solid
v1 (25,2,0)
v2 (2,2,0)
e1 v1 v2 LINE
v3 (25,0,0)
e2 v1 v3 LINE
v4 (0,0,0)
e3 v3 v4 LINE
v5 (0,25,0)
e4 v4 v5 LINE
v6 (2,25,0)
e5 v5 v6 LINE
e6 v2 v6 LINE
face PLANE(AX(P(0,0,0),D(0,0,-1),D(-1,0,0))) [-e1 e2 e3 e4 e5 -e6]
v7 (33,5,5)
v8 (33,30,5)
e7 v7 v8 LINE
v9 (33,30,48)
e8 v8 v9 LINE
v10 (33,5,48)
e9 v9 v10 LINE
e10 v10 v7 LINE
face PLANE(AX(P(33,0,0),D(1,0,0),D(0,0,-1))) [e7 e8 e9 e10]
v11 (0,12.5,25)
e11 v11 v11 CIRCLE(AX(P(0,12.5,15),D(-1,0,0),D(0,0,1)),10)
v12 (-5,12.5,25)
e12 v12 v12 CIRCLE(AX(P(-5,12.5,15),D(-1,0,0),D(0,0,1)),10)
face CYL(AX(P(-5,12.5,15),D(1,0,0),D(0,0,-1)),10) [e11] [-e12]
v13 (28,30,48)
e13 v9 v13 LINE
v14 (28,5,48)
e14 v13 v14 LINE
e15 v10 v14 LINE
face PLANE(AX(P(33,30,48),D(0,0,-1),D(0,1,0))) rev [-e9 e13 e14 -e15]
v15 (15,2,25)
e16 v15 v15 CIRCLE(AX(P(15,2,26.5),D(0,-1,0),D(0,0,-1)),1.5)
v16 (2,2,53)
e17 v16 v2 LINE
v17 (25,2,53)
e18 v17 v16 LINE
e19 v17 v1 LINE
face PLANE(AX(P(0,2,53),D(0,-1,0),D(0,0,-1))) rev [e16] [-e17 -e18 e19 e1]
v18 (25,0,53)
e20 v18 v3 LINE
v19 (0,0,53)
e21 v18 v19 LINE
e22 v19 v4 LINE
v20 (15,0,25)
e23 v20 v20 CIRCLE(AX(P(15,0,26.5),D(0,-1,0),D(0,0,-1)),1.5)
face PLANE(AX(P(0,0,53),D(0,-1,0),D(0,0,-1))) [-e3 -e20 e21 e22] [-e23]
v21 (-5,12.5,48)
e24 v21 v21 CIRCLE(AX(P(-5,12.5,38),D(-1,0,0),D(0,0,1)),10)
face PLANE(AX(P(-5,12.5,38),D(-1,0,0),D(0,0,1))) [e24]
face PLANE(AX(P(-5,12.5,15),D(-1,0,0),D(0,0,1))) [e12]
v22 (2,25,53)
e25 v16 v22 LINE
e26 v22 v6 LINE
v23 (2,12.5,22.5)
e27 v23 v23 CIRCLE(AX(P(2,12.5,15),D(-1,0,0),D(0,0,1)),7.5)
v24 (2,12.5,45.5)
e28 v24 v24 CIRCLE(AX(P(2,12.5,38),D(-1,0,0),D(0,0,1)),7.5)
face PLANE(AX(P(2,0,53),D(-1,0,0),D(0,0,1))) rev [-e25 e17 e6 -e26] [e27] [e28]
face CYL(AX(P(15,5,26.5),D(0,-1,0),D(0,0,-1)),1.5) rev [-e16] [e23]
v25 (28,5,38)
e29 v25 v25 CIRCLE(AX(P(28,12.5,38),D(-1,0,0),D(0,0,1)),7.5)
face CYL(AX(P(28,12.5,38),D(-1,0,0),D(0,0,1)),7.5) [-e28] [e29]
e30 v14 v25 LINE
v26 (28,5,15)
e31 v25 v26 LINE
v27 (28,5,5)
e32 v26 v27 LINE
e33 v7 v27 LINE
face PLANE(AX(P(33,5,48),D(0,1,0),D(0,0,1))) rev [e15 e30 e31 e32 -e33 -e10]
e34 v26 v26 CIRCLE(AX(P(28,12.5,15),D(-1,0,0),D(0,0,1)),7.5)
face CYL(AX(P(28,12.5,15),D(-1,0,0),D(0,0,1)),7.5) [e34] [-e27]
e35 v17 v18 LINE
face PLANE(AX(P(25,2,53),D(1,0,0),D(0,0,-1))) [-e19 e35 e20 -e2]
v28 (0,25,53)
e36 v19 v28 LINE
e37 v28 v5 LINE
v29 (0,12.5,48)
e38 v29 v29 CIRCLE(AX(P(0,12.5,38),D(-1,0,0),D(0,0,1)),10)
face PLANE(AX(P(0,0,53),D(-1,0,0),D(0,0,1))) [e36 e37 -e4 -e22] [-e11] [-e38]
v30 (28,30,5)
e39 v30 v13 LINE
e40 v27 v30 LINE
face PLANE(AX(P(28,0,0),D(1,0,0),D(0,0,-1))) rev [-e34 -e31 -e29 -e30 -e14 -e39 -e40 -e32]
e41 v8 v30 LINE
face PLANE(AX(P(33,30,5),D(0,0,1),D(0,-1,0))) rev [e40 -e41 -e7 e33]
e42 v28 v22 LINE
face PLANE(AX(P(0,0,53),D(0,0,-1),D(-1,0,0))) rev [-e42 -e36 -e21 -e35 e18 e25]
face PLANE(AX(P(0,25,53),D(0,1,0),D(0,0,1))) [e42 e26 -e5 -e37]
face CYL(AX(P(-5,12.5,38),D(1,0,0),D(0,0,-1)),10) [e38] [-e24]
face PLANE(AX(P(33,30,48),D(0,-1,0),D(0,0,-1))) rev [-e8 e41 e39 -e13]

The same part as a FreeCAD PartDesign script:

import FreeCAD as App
import Part
import Sketcher
from FreeCAD import Vector
Q = App.Units.Quantity

doc = App.newDocument("Part")
body = doc.addObject("PartDesign::Body", "Body")

# Sketch on XY plane
sketch1 = doc.addObject("Sketcher::SketchObject", "Sketch")
body.addObject(sketch1)
sketch1.AttachmentSupport = (doc.XY_Plane, [""])
sketch1.MapMode = "FlatFace"
sketch1.addGeometry([
    Part.LineSegment(Vector(0, 25, 0), Vector(0, 0, 0)),  # 0
    Part.LineSegment(Vector(0, 0, 0), Vector(25, 0, 0)),  # 1
    Part.LineSegment(Vector(25, 0, 0), Vector(25, 2, 0)),  # 2
    Part.LineSegment(Vector(25, 2, 0), Vector(2, 2, 0)),  # 3
    Part.LineSegment(Vector(2, 2, 0), Vector(2, 25, 0)),  # 4
    Part.LineSegment(Vector(2, 25, 0), Vector(0, 25, 0)),  # 5
], False)
sketch1.addConstraint([
    Sketcher.Constraint("Coincident", 0, 2, 1, 1),
    Sketcher.Constraint("Coincident", 1, 2, 2, 1),
    Sketcher.Constraint("Coincident", 2, 2, 3, 1),
    Sketcher.Constraint("Coincident", 3, 2, 4, 1),
    Sketcher.Constraint("Coincident", 4, 2, 5, 1),
    Sketcher.Constraint("Coincident", 5, 2, 0, 1),
    Sketcher.Constraint("Vertical", 0),
    Sketcher.Constraint("Horizontal", 1),
    Sketcher.Constraint("Vertical", 2),
    Sketcher.Constraint("Horizontal", 3),
    Sketcher.Constraint("Vertical", 4),
    Sketcher.Constraint("Horizontal", 5),
    Sketcher.Constraint("Coincident", 0, 2, -1, 1),
    Sketcher.Constraint("Equal", 1, 0),
    Sketcher.Constraint("Equal", 5, 2),
    Sketcher.Constraint("DistanceX", 1, 1, 1, 2, Q("25 mm")),
    Sketcher.Constraint("DistanceX", 3, 2, 3, 1, Q("23 mm")),
])
pad1 = doc.addObject("PartDesign::Pad", "Pad")
body.addObject(pad1)
pad1.Profile = sketch1
pad1.Length = 53

# Sketch on YZ plane
sketch2 = doc.addObject("Sketcher::SketchObject", "Sketch001")
body.addObject(sketch2)
sketch2.AttachmentSupport = (doc.YZ_Plane, [""])
sketch2.MapMode = "FlatFace"
sketch2.addGeometry([
    Part.Circle(Vector(12, 15, 0), Vector(0, 0, 1), 10),
    Part.Circle(Vector(12, 38, 0), Vector(0, 0, 1), 10),
], False)
sketch2.addConstraint([
    Sketcher.Constraint("Equal", 0, 1),
    Sketcher.Constraint("Vertical", 0, 3, 1, 3),
    Sketcher.Constraint("Diameter", 0, Q("20 mm")),
    Sketcher.Constraint("DistanceY", -1, 1, 0, 3, Q("15 mm")),
    Sketcher.Constraint("DistanceY", -1, 1, 1, 3, Q("38 mm")),
    Sketcher.Constraint("DistanceX", -1, 1, 0, 3, Q("12.5 mm")),
])
pad2 = doc.addObject("PartDesign::Pad", "Pad001")
body.addObject(pad2)
pad2.Profile = sketch2
pad2.Length = 5
pad2.Reversed = True

# Sketch on YZ plane
sketch3 = doc.addObject("Sketcher::SketchObject", "Sketch002")
body.addObject(sketch3)
sketch3.AttachmentSupport = (doc.YZ_Plane, [""])
sketch3.MapMode = "FlatFace"
sketch3.AttachmentOffset = App.Placement(Vector(0, 0, -5), App.Rotation())
sketch3.addGeometry([
    Part.Circle(Vector(12, 38, 0), Vector(0, 0, 1), 8),
    Part.Circle(Vector(12, 15, 0), Vector(0, 0, 1), 8),
], False)
sketch3.addConstraint([
    Sketcher.Constraint("Equal", 0, 1),
    Sketcher.Constraint("Vertical", 0, 3, 1, 3),
    Sketcher.Constraint("Diameter", 0, Q("15 mm")),
    Sketcher.Constraint("DistanceY", -1, 1, 0, 3, Q("38 mm")),
    Sketcher.Constraint("DistanceY", -1, 1, 1, 3, Q("15 mm")),
    Sketcher.Constraint("DistanceX", -1, 1, 0, 3, Q("12.5 mm")),
])
pad3 = doc.addObject("PartDesign::Pad", "Pad002")
body.addObject(pad3)
pad3.Profile = sketch3
pad3.Length = 33

# Sketch on YZ plane
sketch4 = doc.addObject("Sketcher::SketchObject", "Sketch003")
body.addObject(sketch4)
sketch4.AttachmentSupport = (doc.YZ_Plane, [""])
sketch4.MapMode = "FlatFace"
sketch4.AttachmentOffset = App.Placement(Vector(0, 0, 28), App.Rotation())
sketch4.addGeometry([
    Part.LineSegment(Vector(30, 48, 0), Vector(5, 48, 0)),
    Part.LineSegment(Vector(5, 48, 0), Vector(5, 5, 0)),
    Part.LineSegment(Vector(5, 5, 0), Vector(30, 5, 0)),
    Part.LineSegment(Vector(30, 5, 0), Vector(30, 48, 0)),
], False)
sketch4.addConstraint([
    Sketcher.Constraint("Coincident", 0, 2, 1, 1),
    Sketcher.Constraint("Coincident", 1, 2, 2, 1),
    Sketcher.Constraint("Coincident", 2, 2, 3, 1),
    Sketcher.Constraint("Coincident", 3, 2, 0, 1),
    Sketcher.Constraint("Horizontal", 0),
    Sketcher.Constraint("Vertical", 1),
    Sketcher.Constraint("Horizontal", 2),
    Sketcher.Constraint("Vertical", 3),
    Sketcher.Constraint("DistanceX", 0, 2, 0, 1, Q("25 mm")),
    Sketcher.Constraint("DistanceY", 1, 2, 1, 1, Q("43 mm")),
    Sketcher.Constraint("DistanceX", -1, 1, 0, 2, Q("5 mm")),
    Sketcher.Constraint("DistanceY", -1, 1, 0, 2, Q("48 mm")),
])
pad4 = doc.addObject("PartDesign::Pad", "Pad003")
body.addObject(pad4)
pad4.Profile = sketch4
pad4.Length = 5

# Sketch on XZ plane
sketch5 = doc.addObject("Sketcher::SketchObject", "Sketch004")
body.addObject(sketch5)
sketch5.AttachmentSupport = (doc.XZ_Plane, [""])
sketch5.MapMode = "FlatFace"
sketch5.addGeometry(Part.Circle(Vector(15, 26.5, 0), Vector(0, 0, 1), 1.5), False)
sketch5.addConstraint([
    Sketcher.Constraint("Diameter", 0, Q("3 mm")),
    Sketcher.Constraint("DistanceX", -1, 1, 0, 3, Q("15 mm")),
    Sketcher.Constraint("DistanceY", -1, 1, 0, 3, Q("26.5 mm")),
])
pocket1 = doc.addObject("PartDesign::Pocket", "Pocket")
body.addObject(pocket1)
pocket1.Profile = sketch5
pocket1.Length = 5

doc.recompute()
